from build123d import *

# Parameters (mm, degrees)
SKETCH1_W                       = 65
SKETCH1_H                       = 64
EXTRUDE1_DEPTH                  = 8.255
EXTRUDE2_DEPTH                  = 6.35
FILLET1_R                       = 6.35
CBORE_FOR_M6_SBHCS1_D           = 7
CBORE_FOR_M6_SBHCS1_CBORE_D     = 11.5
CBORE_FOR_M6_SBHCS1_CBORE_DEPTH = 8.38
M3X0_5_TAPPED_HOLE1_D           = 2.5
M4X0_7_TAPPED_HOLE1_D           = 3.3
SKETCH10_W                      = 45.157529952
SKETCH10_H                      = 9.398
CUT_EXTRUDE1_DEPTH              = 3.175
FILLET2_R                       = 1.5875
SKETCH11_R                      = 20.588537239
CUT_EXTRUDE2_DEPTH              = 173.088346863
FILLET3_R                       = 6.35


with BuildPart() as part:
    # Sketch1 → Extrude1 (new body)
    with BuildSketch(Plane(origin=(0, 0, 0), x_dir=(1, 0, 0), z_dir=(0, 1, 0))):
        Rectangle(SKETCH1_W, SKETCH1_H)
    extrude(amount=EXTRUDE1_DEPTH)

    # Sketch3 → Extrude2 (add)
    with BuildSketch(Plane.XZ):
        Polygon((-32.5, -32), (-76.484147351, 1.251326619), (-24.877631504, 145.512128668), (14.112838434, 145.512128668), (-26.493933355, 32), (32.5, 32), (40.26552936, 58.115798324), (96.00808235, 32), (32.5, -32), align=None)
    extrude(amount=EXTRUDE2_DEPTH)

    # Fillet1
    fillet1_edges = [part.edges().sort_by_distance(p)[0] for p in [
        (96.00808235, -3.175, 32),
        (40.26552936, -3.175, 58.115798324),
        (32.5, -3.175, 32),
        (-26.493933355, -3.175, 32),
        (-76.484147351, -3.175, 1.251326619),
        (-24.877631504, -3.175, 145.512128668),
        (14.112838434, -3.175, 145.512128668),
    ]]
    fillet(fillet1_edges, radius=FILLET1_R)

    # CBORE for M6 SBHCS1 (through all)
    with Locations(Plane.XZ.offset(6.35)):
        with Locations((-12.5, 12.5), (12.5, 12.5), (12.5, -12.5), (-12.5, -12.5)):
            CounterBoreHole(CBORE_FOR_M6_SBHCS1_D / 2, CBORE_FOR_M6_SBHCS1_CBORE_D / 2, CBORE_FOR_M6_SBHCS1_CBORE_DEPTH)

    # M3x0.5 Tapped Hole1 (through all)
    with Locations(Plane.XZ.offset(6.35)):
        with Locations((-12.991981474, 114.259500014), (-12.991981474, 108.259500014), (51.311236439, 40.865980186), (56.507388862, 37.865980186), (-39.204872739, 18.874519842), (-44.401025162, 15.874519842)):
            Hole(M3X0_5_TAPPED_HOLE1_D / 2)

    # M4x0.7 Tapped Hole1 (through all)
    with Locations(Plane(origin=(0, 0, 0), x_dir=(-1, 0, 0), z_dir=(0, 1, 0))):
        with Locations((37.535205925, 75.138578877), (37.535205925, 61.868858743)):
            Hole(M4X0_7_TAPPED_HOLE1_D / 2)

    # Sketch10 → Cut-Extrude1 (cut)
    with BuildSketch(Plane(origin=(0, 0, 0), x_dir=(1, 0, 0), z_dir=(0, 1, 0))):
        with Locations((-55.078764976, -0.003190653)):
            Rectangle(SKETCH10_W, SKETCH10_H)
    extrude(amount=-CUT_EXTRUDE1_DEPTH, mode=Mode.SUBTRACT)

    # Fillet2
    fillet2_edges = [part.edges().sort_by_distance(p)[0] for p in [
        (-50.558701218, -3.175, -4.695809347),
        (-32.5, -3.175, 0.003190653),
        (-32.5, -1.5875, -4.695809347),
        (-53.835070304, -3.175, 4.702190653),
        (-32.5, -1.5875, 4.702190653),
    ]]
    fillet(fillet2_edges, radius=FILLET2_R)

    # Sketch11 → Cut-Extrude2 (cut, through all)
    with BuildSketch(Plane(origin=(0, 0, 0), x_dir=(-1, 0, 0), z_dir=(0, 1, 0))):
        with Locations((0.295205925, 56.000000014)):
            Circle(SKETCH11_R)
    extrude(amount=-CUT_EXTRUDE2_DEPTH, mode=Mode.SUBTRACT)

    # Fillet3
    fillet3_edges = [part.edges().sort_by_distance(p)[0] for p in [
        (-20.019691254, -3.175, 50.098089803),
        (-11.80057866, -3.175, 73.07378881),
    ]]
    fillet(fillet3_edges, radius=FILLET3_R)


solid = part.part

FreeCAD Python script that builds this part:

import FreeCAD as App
import Part
import Sketcher

V = App.Vector


def edges_at(feature, points):
    """Names of the edges that pass closest to the given points."""
    edges = feature.Shape.Edges
    near = lambda p: min(range(len(edges)), key=lambda i: edges[i].distToShape(Part.Vertex(*p))[0])
    return sorted({f"Edge{near(p) + 1}" for p in points})

doc = App.newDocument("Part")
body = doc.addObject("PartDesign::Body", "Body")

# Sketch on XZ plane
sketch1 = doc.addObject("Sketcher::SketchObject", "Sketch")
body.addObject(sketch1)
sketch1.AttachmentSupport = (doc.XZ_Plane, [""])
sketch1.MapMode = "FlatFace"
sketch1.addGeometry(Part.LineSegment(V(-32.5, -32, 0), V(-32.5, 32, 0)), False)
sketch1.addGeometry(Part.LineSegment(V(-32.5, 32, 0), V(32.5, 32, 0)), False)
sketch1.addGeometry(Part.LineSegment(V(32.5, 32, 0), V(32.5, -32, 0)), False)
sketch1.addGeometry(Part.LineSegment(V(32.5, -32, 0), V(-32.5, -32, 0)), False)
sketch1.addConstraint(Sketcher.Constraint("Coincident", 0, 2, 1, 1))
sketch1.addConstraint(Sketcher.Constraint("Coincident", 1, 2, 2, 1))
sketch1.addConstraint(Sketcher.Constraint("Coincident", 2, 2, 3, 1))
sketch1.addConstraint(Sketcher.Constraint("Coincident", 3, 2, 0, 1))
sketch1.addConstraint(Sketcher.Constraint("Vertical", 0))
sketch1.addConstraint(Sketcher.Constraint("Horizontal", 1))
sketch1.addConstraint(Sketcher.Constraint("Vertical", 2))
sketch1.addConstraint(Sketcher.Constraint("Horizontal", 3))
sketch1.addConstraint(Sketcher.Constraint("Symmetric", 0, 2, 2, 2, -1, 1))
sketch1.addConstraint(Sketcher.Constraint("DistanceX", 1, 1, 1, 2, 65.0))
sketch1.addConstraint(Sketcher.Constraint("DistanceY", 0, 1, 0, 2, 64.0))
pad1 = doc.addObject("PartDesign::Pad", "Pad")
body.addObject(pad1)
pad1.Profile = sketch1
pad1.Length = 8.255
pad1.Reversed = True

# Sketch on XZ plane
sketch2 = doc.addObject("Sketcher::SketchObject", "Sketch001")
body.addObject(sketch2)
sketch2.AttachmentSupport = (doc.XZ_Plane, [""])
sketch2.MapMode = "FlatFace"
sketch2.addGeometry(Part.LineSegment(V(-76.484147, 1.251327, 0), V(-32.5, -32, 0)), False)
sketch2.addGeometry(Part.LineSegment(V(-32.5, -32, 0), V(32.5, -32, 0)), False)
sketch2.addGeometry(Part.LineSegment(V(32.5, -32, 0), V(96.008082, 32, 0)), False)
sketch2.addGeometry(Part.LineSegment(V(96.008082, 32, 0), V(40.265529, 58.115798, 0)), False)
sketch2.addGeometry(Part.LineSegment(V(40.265529, 58.115798, 0), V(32.5, 32, 0)), False)
sketch2.addGeometry(Part.LineSegment(V(32.5, 32, 0), V(-26.493933, 32, 0)), False)
sketch2.addGeometry(Part.LineSegment(V(-26.493933, 32, 0), V(14.112838, 145.512129, 0)), False)
sketch2.addGeometry(Part.LineSegment(V(14.112838, 145.512129, 0), V(-24.877632, 145.512129, 0)), False)
sketch2.addGeometry(Part.LineSegment(V(-24.877632, 145.512129, 0), V(-76.484147, 1.251327, 0)), False)
sketch2.addConstraint(Sketcher.Constraint("Coincident", 0, 2, 1, 1))
sketch2.addConstraint(Sketcher.Constraint("Coincident", 1, 2, 2, 1))
sketch2.addConstraint(Sketcher.Constraint("Coincident", 2, 2, 3, 1))
sketch2.addConstraint(Sketcher.Constraint("Coincident", 3, 2, 4, 1))
sketch2.addConstraint(Sketcher.Constraint("Coincident", 4, 2, 5, 1))
sketch2.addConstraint(Sketcher.Constraint("Coincident", 5, 2, 6, 1))
sketch2.addConstraint(Sketcher.Constraint("Coincident", 6, 2, 7, 1))
sketch2.addConstraint(Sketcher.Constraint("Coincident", 7, 2, 8, 1))
sketch2.addConstraint(Sketcher.Constraint("Coincident", 8, 2, 0, 1))
sketch2.addConstraint(Sketcher.Constraint("Horizontal", 1))
sketch2.addConstraint(Sketcher.Constraint("Horizontal", 5))
sketch2.addConstraint(Sketcher.Constraint("Horizontal", 7))
sketch2.addConstraint(Sketcher.Constraint("Symmetric", 0, 2, 4, 2, -1, 1))
sketch2.addConstraint(Sketcher.Constraint("Parallel", 6, 8))
sketch2.addConstraint(Sketcher.Constraint("Horizontal", 2, 2, 4, 2))
sketch2.addConstraint(Sketcher.Constraint("Vertical", 1, 2, 4, 2))
sketch2.addConstraint(Sketcher.Constraint("DistanceX", 1, 1, 1, 2, 65.0))
sketch2.addConstraint(Sketcher.Constraint("DistanceY", 0, 2, -1, 1, 32.0))
sketch2.addConstraint(Sketcher.Constraint("Distance", 2, 90.162501))
sketch2.addConstraint(Sketcher.Constraint("DistanceX", 7, 2, 7, 1, 38.99047))
sketch2.addConstraint(Sketcher.Constraint("DistanceY", -1, 1, 3, 2, 58.115798))
sketch2.addConstraint(Sketcher.Constraint("DistanceX", 5, 2, 7, 2, 1.616302))
sketch2.addConstraint(Sketcher.Constraint("Distance", 6, 120.556681))
sketch2.addConstraint(Sketcher.Constraint("DistanceX", 5, 2, 5, 1, 58.993933))
sketch2.addConstraint(Sketcher.Constraint("DistanceX", -1, 1, 3, 2, 40.265529))
sketch2.addConstraint(Sketcher.Constraint("DistanceY", 8, 2, 3, 2, 56.864472))
pad2 = doc.addObject("PartDesign::Pad", "Pad001")
body.addObject(pad2)
pad2.Profile = sketch2
pad2.Length = 6.35
doc.recompute()

fillet = doc.addObject("PartDesign::Fillet", "Fillet")
body.addObject(fillet)
fillet.Base = (pad2, edges_at(pad2, [
    (96.008, -3.175, 32),
    (40.266, -3.175, 58.116),
    (32.5, -3.175, 32),
    (-26.494, -3.175, 32),
    (-76.484, -3.175, 1.251),
    (-24.878, -3.175, 145.512),
    (14.113, -3.175, 145.512),
]))
fillet.Radius = 6.35

# Sketch on XZ plane
sketch3 = doc.addObject("Sketcher::SketchObject", "Sketch002")
body.addObject(sketch3)
sketch3.AttachmentSupport = (doc.XZ_Plane, [""])
sketch3.MapMode = "FlatFace"
sketch3.AttachmentOffset = App.Placement(V(0, 0, 6.35), App.Rotation())
sketch3.addGeometry(Part.Circle(V(-12.5, 12.5, 0), V(0, 0, 1), 3.5), False)
sketch3.addGeometry(Part.Circle(V(12.5, 12.5, 0), V(0, 0, 1), 3.5), False)
sketch3.addGeometry(Part.Circle(V(12.5, -12.5, 0), V(0, 0, 1), 3.5), False)
sketch3.addGeometry(Part.Circle(V(-12.5, -12.5, 0), V(0, 0, 1), 3.5), False)
sketch3.addConstraint(Sketcher.Constraint("Equal", 0, 1))
sketch3.addConstraint(Sketcher.Constraint("Equal", 1, 2))
sketch3.addConstraint(Sketcher.Constraint("Equal", 2, 3))
sketch3.addConstraint(Sketcher.Constraint("Symmetric", 0, 3, 2, 3, -1, 1))
sketch3.addConstraint(Sketcher.Constraint("Symmetric", 1, 3, 3, 3, -1, 1))
sketch3.addConstraint(Sketcher.Constraint("Symmetric", 0, 3, 1, 3, -2))
sketch3.addConstraint(Sketcher.Constraint("Diameter", 0, 7.0))
sketch3.addConstraint(Sketcher.Constraint("DistanceX", 0, 3, 1, 3, 25.0))
sketch3.addConstraint(Sketcher.Constraint("DistanceY", 2, 3, 1, 3, 25.0))
doc.recompute()
hole = doc.addObject("PartDesign::Hole", "Hole")
body.addObject(hole)
hole.Profile = sketch3
hole.ThreadType = "None"
hole.Diameter = 7
hole.DepthType = "ThroughAll"
hole.HoleCutType = "Counterbore"
hole.HoleCutDiameter = 11.5
hole.HoleCutDepth = 8.38

# Sketch on XZ plane
sketch4 = doc.addObject("Sketcher::SketchObject", "Sketch003")
body.addObject(sketch4)
sketch4.AttachmentSupport = (doc.XZ_Plane, [""])
sketch4.MapMode = "FlatFace"
sketch4.AttachmentOffset = App.Placement(V(0, 0, 6.35), App.Rotation())
sketch4.addGeometry(Part.Circle(V(-12.991981, 114.2595, 0), V(0, 0, 1), 1.25), False)
sketch4.addGeometry(Part.Circle(V(-12.991981, 108.2595, 0), V(0, 0, 1), 1.25), False)
sketch4.addGeometry(Part.Circle(V(51.311236, 40.86598, 0), V(0, 0, 1), 1.25), False)
sketch4.addGeometry(Part.Circle(V(56.507389, 37.86598, 0), V(0, 0, 1), 1.25), False)
sketch4.addGeometry(Part.Circle(V(-39.204873, 18.87452, 0), V(0, 0, 1), 1.25), False)
sketch4.addGeometry(Part.Circle(V(-44.401025, 15.87452, 0), V(0, 0, 1), 1.25), False)
sketch4.addConstraint(Sketcher.Constraint("Equal", 0, 1))
sketch4.addConstraint(Sketcher.Constraint("Equal", 1, 2))
sketch4.addConstraint(Sketcher.Constraint("Equal", 2, 3))
sketch4.addConstraint(Sketcher.Constraint("Equal", 3, 4))
sketch4.addConstraint(Sketcher.Constraint("Equal", 4, 5))
sketch4.addConstraint(Sketcher.Constraint("Vertical", 0, 3, 1, 3))
sketch4.addConstraint(Sketcher.Constraint("Diameter", 0, 2.5))
sketch4.addConstraint(Sketcher.Constraint("DistanceY", 1, 3, 0, 3, 6.0))
sketch4.addConstraint(Sketcher.Constraint("DistanceY", 3, 3, 2, 3, 3.0))
sketch4.addConstraint(Sketcher.Constraint("DistanceY", 5, 3, 4, 3, 3.0))
sketch4.addConstraint(Sketcher.Constraint("DistanceY", -1, 1, 0, 3, 114.2595))
sketch4.addConstraint(Sketcher.Constraint("DistanceX", 0, 3, -1, 1, 12.991981))
sketch4.addConstraint(Sketcher.Constraint("DistanceY", -1, 1, 2, 3, 40.86598))
sketch4.addConstraint(Sketcher.Constraint("DistanceX", -1, 1, 3, 3, 56.507389))
sketch4.addConstraint(Sketcher.Constraint("DistanceY", -1, 1, 4, 3, 18.87452))
sketch4.addConstraint(Sketcher.Constraint("DistanceX", 4, 3, 2, 3, 90.516109))
sketch4.addConstraint(Sketcher.Constraint("DistanceX", 4, 3, 1, 3, 26.212891))
sketch4.addConstraint(Sketcher.Constraint("DistanceX", 5, 3, 2, 3, 95.712262))
doc.recompute()
hole2 = doc.addObject("PartDesign::Hole", "Hole001")
body.addObject(hole2)
hole2.Profile = sketch4
hole2.ThreadType = "None"
hole2.Diameter = 2.5
hole2.DepthType = "ThroughAll"

# Sketch on XZ plane
sketch5 = doc.addObject("Sketcher::SketchObject", "Sketch004")
body.addObject(sketch5)
sketch5.AttachmentSupport = (doc.XZ_Plane, [""])
sketch5.MapMode = "FlatFace"
sketch5.addGeometry(Part.Circle(V(-37.535206, 75.138579, 0), V(0, 0, 1), 1.65), False)
sketch5.addGeometry(Part.Circle(V(-37.535206, 61.868859, 0), V(0, 0, 1), 1.65), False)
sketch5.addConstraint(Sketcher.Constraint("Equal", 0, 1))
sketch5.addConstraint(Sketcher.Constraint("Vertical", 0, 3, 1, 3))
sketch5.addConstraint(Sketcher.Constraint("Diameter", 0, 3.3))
sketch5.addConstraint(Sketcher.Constraint("DistanceY", -1, 1, 0, 3, 75.138579))
sketch5.addConstraint(Sketcher.Constraint("DistanceY", -1, 1, 1, 3, 61.868859))
sketch5.addConstraint(Sketcher.Constraint("DistanceX", 0, 3, -1, 1, 37.535206))
doc.recompute()
hole3 = doc.addObject("PartDesign::Hole", "Hole002")
body.addObject(hole3)
hole3.Profile = sketch5
hole3.ThreadType = "None"
hole3.Diameter = 3.3
hole3.DepthType = "ThroughAll"
hole3.Reversed = True

# Sketch on XZ plane
sketch6 = doc.addObject("Sketcher::SketchObject", "Sketch005")
body.addObject(sketch6)
sketch6.AttachmentSupport = (doc.XZ_Plane, [""])
sketch6.MapMode = "FlatFace"
sketch6.addGeometry(Part.LineSegment(V(-77.65753, -4.695809, 0), V(-77.65753, 4.702191, 0)), False)
sketch6.addGeometry(Part.LineSegment(V(-77.65753, 4.702191, 0), V(-32.5, 4.702191, 0)), False)
sketch6.addGeometry(Part.LineSegment(V(-32.5, 4.702191, 0), V(-32.5, -4.695809, 0)), False)
sketch6.addGeometry(Part.LineSegment(V(-32.5, -4.695809, 0), V(-77.65753, -4.695809, 0)), False)
sketch6.addConstraint(Sketcher.Constraint("Coincident", 0, 2, 1, 1))
sketch6.addConstraint(Sketcher.Constraint("Coincident", 1, 2, 2, 1))
sketch6.addConstraint(Sketcher.Constraint("Coincident", 2, 2, 3, 1))
sketch6.addConstraint(Sketcher.Constraint("Coincident", 3, 2, 0, 1))
sketch6.addConstraint(Sketcher.Constraint("Vertical", 0))
sketch6.addConstraint(Sketcher.Constraint("Horizontal", 1))
sketch6.addConstraint(Sketcher.Constraint("Vertical", 2))
sketch6.addConstraint(Sketcher.Constraint("Horizontal", 3))
sketch6.addConstraint(Sketcher.Constraint("DistanceX", 1, 2, -1, 1, 32.5))
sketch6.addConstraint(Sketcher.Constraint("DistanceY", 0, 1, 0, 2, 9.398))
sketch6.addConstraint(Sketcher.Constraint("DistanceX", 1, 1, 1, 2, 45.15753))
sketch6.addConstraint(Sketcher.Constraint("DistanceY", -1, 1, 0, 2, 4.702191))
pocket1 = doc.addObject("PartDesign::Pocket", "Pocket")
body.addObject(pocket1)
pocket1.Profile = sketch6
pocket1.Length = 3.175
pocket1.Reversed = True
doc.recompute()

fillet2 = doc.addObject("PartDesign::Fillet", "Fillet001")
body.addObject(fillet2)
fillet2.Base = (pocket1, edges_at(pocket1, [
    (-50.559, -3.175, -4.696),
    (-32.5, -3.175, 0.003),
    (-32.5, -1.587, -4.696),
    (-53.835, -3.175, 4.702),
    (-32.5, -1.587, 4.702),
]))
fillet2.Radius = 1.5875

# Sketch on XZ plane
sketch7 = doc.addObject("Sketcher::SketchObject", "Sketch006")
body.addObject(sketch7)
sketch7.AttachmentSupport = (doc.XZ_Plane, [""])
sketch7.MapMode = "FlatFace"
sketch7.addGeometry(Part.Circle(V(-0.295206, 56, 0), V(0, 0, 1), 20.588537), False)
sketch7.addConstraint(Sketcher.Constraint("DistanceY", -1, 1, 0, 3, 56.0))
sketch7.addConstraint(Sketcher.Constraint("Diameter", 0, 41.177074))
sketch7.addConstraint(Sketcher.Constraint("DistanceX", 0, 3, -1, 1, 0.295206))
pocket2 = doc.addObject("PartDesign::Pocket", "Pocket001")
body.addObject(pocket2)
pocket2.Profile = sketch7
pocket2.Type = "ThroughAll"
pocket2.Reversed = True
doc.recompute()

fillet3 = doc.addObject("PartDesign::Fillet", "Fillet002")
body.addObject(fillet3)
fillet3.Base = (pocket2, edges_at(pocket2, [(-20.02, -3.175, 50.098), (-11.801, -3.175, 73.074)]))
fillet3.Radius = 6.35

doc.recompute()
